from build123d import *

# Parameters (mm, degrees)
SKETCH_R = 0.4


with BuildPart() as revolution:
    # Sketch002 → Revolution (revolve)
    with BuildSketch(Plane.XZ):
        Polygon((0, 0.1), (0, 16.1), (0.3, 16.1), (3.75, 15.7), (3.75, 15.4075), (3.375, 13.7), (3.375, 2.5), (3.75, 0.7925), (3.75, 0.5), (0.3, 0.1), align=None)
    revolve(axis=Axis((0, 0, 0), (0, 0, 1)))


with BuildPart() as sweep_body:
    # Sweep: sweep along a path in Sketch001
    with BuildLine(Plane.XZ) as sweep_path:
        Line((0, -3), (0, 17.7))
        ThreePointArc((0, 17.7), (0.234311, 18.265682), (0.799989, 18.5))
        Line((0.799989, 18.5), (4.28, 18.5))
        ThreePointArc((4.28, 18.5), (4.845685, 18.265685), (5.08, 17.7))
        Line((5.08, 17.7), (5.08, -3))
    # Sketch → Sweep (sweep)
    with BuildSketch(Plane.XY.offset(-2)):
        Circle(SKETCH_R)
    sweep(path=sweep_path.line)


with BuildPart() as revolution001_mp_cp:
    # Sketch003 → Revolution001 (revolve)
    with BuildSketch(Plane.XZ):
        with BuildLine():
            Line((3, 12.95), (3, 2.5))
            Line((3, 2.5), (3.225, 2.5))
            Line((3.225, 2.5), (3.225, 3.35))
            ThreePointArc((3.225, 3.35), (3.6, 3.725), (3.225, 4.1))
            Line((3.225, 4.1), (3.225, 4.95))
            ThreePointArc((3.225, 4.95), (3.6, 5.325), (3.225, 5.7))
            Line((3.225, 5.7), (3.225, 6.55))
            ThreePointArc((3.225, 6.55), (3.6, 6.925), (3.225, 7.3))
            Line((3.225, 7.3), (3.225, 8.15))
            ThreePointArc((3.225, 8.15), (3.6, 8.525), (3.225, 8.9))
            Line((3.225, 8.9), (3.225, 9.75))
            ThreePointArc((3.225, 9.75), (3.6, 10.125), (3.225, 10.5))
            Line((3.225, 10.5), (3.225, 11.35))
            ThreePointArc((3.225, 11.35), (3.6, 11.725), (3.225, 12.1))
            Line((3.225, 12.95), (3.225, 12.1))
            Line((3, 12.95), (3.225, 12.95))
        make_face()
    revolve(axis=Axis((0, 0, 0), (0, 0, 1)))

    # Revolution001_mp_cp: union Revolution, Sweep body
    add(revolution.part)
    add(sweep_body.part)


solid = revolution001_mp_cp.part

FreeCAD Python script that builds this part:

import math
import FreeCAD as App
import Part
import Sketcher
from FreeCAD import Vector

doc = App.newDocument("Part")
body = doc.addObject("PartDesign::Body", "Body")

# Sketch on XZ plane
sketch1 = body.newObject("Sketcher::SketchObject", "Sketch")
sketch1.AttachmentSupport = (doc.getObject("XZ_Plane"), [""])
sketch1.MapMode = "FlatFace"
sketch1.addGeometry([
    Part.LineSegment(Vector(0, 16.1, 0), Vector(0, 0.1, 0)),  # 0
    Part.LineSegment(Vector(0, 0.1, 0), Vector(0.3, 0.1, 0)),  # 1
    Part.LineSegment(Vector(0.3, 0.1, 0), Vector(3.75, 0.5, 0)),  # 2
    Part.LineSegment(Vector(3.75, 0.5, 0), Vector(3.75, 0.79, 0)),  # 3
    Part.LineSegment(Vector(3.75, 0.79, 0), Vector(3.38, 2.5, 0)),  # 4
    Part.LineSegment(Vector(3.38, 2.5, 0), Vector(3.38, 13.7, 0)),  # 5
    Part.LineSegment(Vector(3.38, 13.7, 0), Vector(3.75, 15.41, 0)),  # 6
    Part.LineSegment(Vector(3.75, 15.41, 0), Vector(3.75, 15.7, 0)),  # 7
    Part.LineSegment(Vector(3.75, 15.7, 0), Vector(0.3, 16.1, 0)),  # 8
    Part.LineSegment(Vector(0.3, 16.1, 0), Vector(0, 16.1, 0)),  # 9
], False)
sketch1.addConstraint([
    Sketcher.Constraint("Coincident", 0, 2, 1, 1),
    Sketcher.Constraint("Coincident", 1, 2, 2, 1),
    Sketcher.Constraint("Coincident", 2, 2, 3, 1),
    Sketcher.Constraint("Coincident", 3, 2, 4, 1),
    Sketcher.Constraint("Coincident", 4, 2, 5, 1),
    Sketcher.Constraint("Coincident", 5, 2, 6, 1),
    Sketcher.Constraint("Coincident", 6, 2, 7, 1),
    Sketcher.Constraint("Coincident", 7, 2, 8, 1),
    Sketcher.Constraint("Coincident", 8, 2, 9, 1),
    Sketcher.Constraint("Coincident", 9, 2, 0, 1),
    Sketcher.Constraint("Vertical", 0),
    Sketcher.Constraint("Horizontal", 1),
    Sketcher.Constraint("Vertical", 3),
    Sketcher.Constraint("Vertical", 5),
    Sketcher.Constraint("Vertical", 7),
    Sketcher.Constraint("Horizontal", 9),
    Sketcher.Constraint("PointOnObject", 0, 2, -2),
    Sketcher.Constraint("Vertical", 3, 2, 6, 2),
    Sketcher.Constraint("Vertical", 1, 2, 8, 2),
    Sketcher.Constraint("Equal", 3, 7),
    Sketcher.Constraint("Equal", 4, 6),
    Sketcher.Constraint("Equal", 2, 8),
    Sketcher.Constraint("DistanceY", 0, 2, 0, 1, 16.0),
    Sketcher.Constraint("DistanceX", 1, 1, 1, 2, 0.3),
    Sketcher.Constraint("DistanceY", 5, 1, 5, 2, 11.2),
    Sketcher.Constraint("DistanceY", 2, 2, 4, 2, 2.0),
    Sketcher.Constraint("DistanceY", -1, 1, 0, 2, 0.1),
    Sketcher.Constraint("DistanceX", -1, 1, 2, 2, 3.75),
    Sketcher.Constraint("DistanceY", 3, 1, 3, 2, 0.2925),
    Sketcher.Constraint("DistanceX", -1, 1, 4, 2, 3.375),
])
revolution = body.newObject("PartDesign::Revolution", "Revolution")
revolution.Profile = sketch1
revolution.ReferenceAxis = (sketch1, ["V_Axis"])
revolution.Angle = 360
body2 = doc.addObject("PartDesign::Body", "Body001")

# Sketch on XY plane
sketch2 = body2.newObject("Sketcher::SketchObject", "Sketch001")
sketch2.AttachmentSupport = (doc.getObject("XY_Plane001"), [""])
sketch2.MapMode = "FlatFace"
sketch2.AttachmentOffset = App.Placement(Vector(0, 0, -2), App.Rotation())
sketch2.addGeometry(Part.Circle(Vector(0, 0, 0), Vector(0, 0, 1), 0.4), False)
sketch2.addConstraint([
    Sketcher.Constraint("Coincident", 0, 3, -1, 1),
    Sketcher.Constraint("Diameter", 0, 0.8),
])

# Sketch on XZ plane
sketch3 = body2.newObject("Sketcher::SketchObject", "Sketch002")
sketch3.AttachmentSupport = (doc.getObject("XZ_Plane001"), [""])
sketch3.MapMode = "FlatFace"
sketch3.addGeometry([
    Part.LineSegment(Vector(0, -3, 0), Vector(0, 17.7, 0)),  # 0
    Part.ArcOfCircle(Part.Circle(Vector(0.8, 17.7, 0), Vector(0, 0, 1), 0.8), math.radians(90), math.radians(180)),  # 1
    Part.LineSegment(Vector(0.8, 18.5, 0), Vector(4.3, 18.5, 0)),  # 2
    Part.ArcOfCircle(Part.Circle(Vector(4.3, 17.7, 0), Vector(0, 0, 1), 0.8), math.radians(0), math.radians(90)),  # 3
    Part.LineSegment(Vector(5.1, 17.7, 0), Vector(5.1, -3, 0)),  # 4
], False)
sketch3.addConstraint([
    Sketcher.Constraint("Tangent", 0, 2, 1, 2),
    Sketcher.Constraint("Coincident", 1, 1, 2, 1),
    Sketcher.Constraint("Tangent", 2, 2, 3, 2),
    Sketcher.Constraint("Tangent", 3, 1, 4, 1),
    Sketcher.Constraint("Vertical", 0),
    Sketcher.Constraint("Horizontal", 2),
    Sketcher.Constraint("Vertical", 4),
    Sketcher.Constraint("Equal", 1, 3),
    Sketcher.Constraint("PointOnObject", 0, 1, -2),
    Sketcher.Constraint("Horizontal", 0, 1, 4, 2),
    Sketcher.Constraint("Radius", 1, 0.8),
    Sketcher.Constraint("DistanceY", 0, 1, 0, 2, 20.7),
    Sketcher.Constraint("DistanceY", 0, 1, -1, 1, 3.0),
    Sketcher.Constraint("DistanceX", -1, 1, 3, 3, 4.279999),
    Sketcher.Constraint("DistanceX", 2, 1, 2, 2, 3.480011),
])
doc.recompute()

additivepipe = body2.newObject("PartDesign::AdditivePipe", "AdditivePipe")
additivepipe.Profile = sketch2
additivepipe.Spine = (sketch3, ["Edge1", "Edge2", "Edge3", "Edge4", "Edge5"])
body3 = doc.addObject("PartDesign::Body", "Body002")

# Sketch on XZ plane
sketch4 = body3.newObject("Sketcher::SketchObject", "Sketch003")
sketch4.AttachmentSupport = (doc.getObject("XZ_Plane002"), [""])
sketch4.MapMode = "FlatFace"
sketch4.addGeometry([
    Part.LineSegment(Vector(3, 12.95, 0), Vector(3, 2.5, 0)),  # 0
    Part.LineSegment(Vector(3, 2.5, 0), Vector(3.23, 2.5, 0)),  # 1
    Part.LineSegment(Vector(3.23, 2.5, 0), Vector(3.23, 3.35, 0)),  # 2
    Part.ArcOfCircle(Part.Circle(Vector(3.23, 3.73, 0), Vector(0, 0, 1), 0.38), math.radians(-90), math.radians(90)),  # 3
    Part.LineSegment(Vector(3.23, 4.1, 0), Vector(3.23, 4.95, 0)),  # 4
    Part.ArcOfCircle(Part.Circle(Vector(3.23, 5.33, 0), Vector(0, 0, 1), 0.38), math.radians(-90), math.radians(90)),  # 5
    Part.LineSegment(Vector(3.23, 5.7, 0), Vector(3.23, 6.55, 0)),  # 6
    Part.ArcOfCircle(Part.Circle(Vector(3.23, 6.92, 0), Vector(0, 0, 1), 0.38), math.radians(-90), math.radians(90)),  # 7
    Part.LineSegment(Vector(3.23, 7.3, 0), Vector(3.23, 8.15, 0)),  # 8
    Part.ArcOfCircle(Part.Circle(Vector(3.23, 8.53, 0), Vector(0, 0, 1), 0.38), math.radians(-90), math.radians(90)),  # 9
    Part.LineSegment(Vector(3.23, 8.9, 0), Vector(3.23, 9.75, 0)),  # 10
    Part.ArcOfCircle(Part.Circle(Vector(3.23, 10.12, 0), Vector(0, 0, 1), 0.38), math.radians(-90), math.radians(90)),  # 11
    Part.LineSegment(Vector(3.23, 10.5, 0), Vector(3.23, 11.35, 0)),  # 12
    Part.ArcOfCircle(Part.Circle(Vector(3.23, 11.72, 0), Vector(0, 0, 1), 0.38), math.radians(-90), math.radians(90)),  # 13
    Part.LineSegment(Vector(3.23, 12.1, 0), Vector(3.23, 12.95, 0)),  # 14
    Part.LineSegment(Vector(3.23, 12.95, 0), Vector(3, 12.95, 0)),  # 15
], False)
sketch4.addConstraint([
    Sketcher.Constraint("Coincident", 0, 2, 1, 1),
    Sketcher.Constraint("Coincident", 1, 2, 2, 1),
    Sketcher.Constraint("Coincident", 2, 2, 3, 1),
    Sketcher.Constraint("Coincident", 3, 2, 4, 1),
    Sketcher.Constraint("Coincident", 4, 2, 5, 1),
    Sketcher.Constraint("Coincident", 5, 2, 6, 1),
    Sketcher.Constraint("Coincident", 6, 2, 7, 1),
    Sketcher.Constraint("Coincident", 7, 2, 8, 1),
    Sketcher.Constraint("Coincident", 8, 2, 9, 1),
    Sketcher.Constraint("Coincident", 9, 2, 10, 1),
    Sketcher.Constraint("Coincident", 10, 2, 11, 1),
    Sketcher.Constraint("Coincident", 11, 2, 12, 1),
    Sketcher.Constraint("Coincident", 12, 2, 13, 1),
    Sketcher.Constraint("Coincident", 13, 2, 14, 1),
    Sketcher.Constraint("Coincident", 14, 2, 15, 1),
    Sketcher.Constraint("Coincident", 15, 2, 0, 1),
    Sketcher.Constraint("Vertical", 0),
    Sketcher.Constraint("Horizontal", 1),
    Sketcher.Constraint("Vertical", 2),
    Sketcher.Constraint("Vertical", 4),
    Sketcher.Constraint("Vertical", 6),
    Sketcher.Constraint("Vertical", 8),
    Sketcher.Constraint("Vertical", 10),
    Sketcher.Constraint("Vertical", 12),
    Sketcher.Constraint("Vertical", 14),
    Sketcher.Constraint("Horizontal", 15),
    Sketcher.Constraint("Equal", 3, 5),
    Sketcher.Constraint("Equal", 5, 7),
    Sketcher.Constraint("Equal", 7, 9),
    Sketcher.Constraint("Equal", 9, 11),
    Sketcher.Constraint("Equal", 11, 13),
    Sketcher.Constraint("Vertical", 3, 3, 5, 3),
    Sketcher.Constraint("Vertical", 5, 3, 7, 3),
    Sketcher.Constraint("Vertical", 7, 3, 9, 3),
    Sketcher.Constraint("Vertical", 9, 3, 11, 3),
    Sketcher.Constraint("Vertical", 11, 3, 13, 3),
    Sketcher.Constraint("Vertical", 13, 3, 1, 2),
    Sketcher.Constraint("Vertical", 2, 2, 3, 2),
    Sketcher.Constraint("Vertical", 4, 2, 5, 2),
    Sketcher.Constraint("Vertical", 6, 2, 7, 2),
    Sketcher.Constraint("Vertical", 8, 2, 9, 2),
    Sketcher.Constraint("Vertical", 10, 2, 11, 2),
    Sketcher.Constraint("Vertical", 12, 2, 13, 2),
    Sketcher.Constraint("Equal", 2, 4),
    Sketcher.Constraint("Equal", 4, 6),
    Sketcher.Constraint("Equal", 6, 8),
    Sketcher.Constraint("Equal", 8, 10),
    Sketcher.Constraint("Equal", 10, 12),
    Sketcher.Constraint("Equal", 12, 14),
    Sketcher.Constraint("DistanceX", -1, 1, 0, 2, 3.0),
    Sketcher.Constraint("Radius", 3, 0.375),
    Sketcher.Constraint("DistanceY", 3, 3, 13, 3, 8.0),
    Sketcher.Constraint("DistanceY", -1, 1, 0, 2, 2.5),
    Sketcher.Constraint("DistanceX", 1, 1, 1, 2, 0.225),
])
revolution2 = body3.newObject("PartDesign::Revolution", "Revolution001")
revolution2.Profile = sketch4
revolution2.ReferenceAxis = (sketch4, ["V_Axis"])
revolution2.Angle = 360
doc.recompute()

boolean = body3.newObject("PartDesign::Boolean", "Boolean")
boolean.Type = "Fuse"
boolean.addObjects([body])
doc.recompute()

boolean2 = body3.newObject("PartDesign::Boolean", "Boolean001")
boolean2.Type = "Fuse"
boolean2.addObjects([body2])

doc.recompute()
